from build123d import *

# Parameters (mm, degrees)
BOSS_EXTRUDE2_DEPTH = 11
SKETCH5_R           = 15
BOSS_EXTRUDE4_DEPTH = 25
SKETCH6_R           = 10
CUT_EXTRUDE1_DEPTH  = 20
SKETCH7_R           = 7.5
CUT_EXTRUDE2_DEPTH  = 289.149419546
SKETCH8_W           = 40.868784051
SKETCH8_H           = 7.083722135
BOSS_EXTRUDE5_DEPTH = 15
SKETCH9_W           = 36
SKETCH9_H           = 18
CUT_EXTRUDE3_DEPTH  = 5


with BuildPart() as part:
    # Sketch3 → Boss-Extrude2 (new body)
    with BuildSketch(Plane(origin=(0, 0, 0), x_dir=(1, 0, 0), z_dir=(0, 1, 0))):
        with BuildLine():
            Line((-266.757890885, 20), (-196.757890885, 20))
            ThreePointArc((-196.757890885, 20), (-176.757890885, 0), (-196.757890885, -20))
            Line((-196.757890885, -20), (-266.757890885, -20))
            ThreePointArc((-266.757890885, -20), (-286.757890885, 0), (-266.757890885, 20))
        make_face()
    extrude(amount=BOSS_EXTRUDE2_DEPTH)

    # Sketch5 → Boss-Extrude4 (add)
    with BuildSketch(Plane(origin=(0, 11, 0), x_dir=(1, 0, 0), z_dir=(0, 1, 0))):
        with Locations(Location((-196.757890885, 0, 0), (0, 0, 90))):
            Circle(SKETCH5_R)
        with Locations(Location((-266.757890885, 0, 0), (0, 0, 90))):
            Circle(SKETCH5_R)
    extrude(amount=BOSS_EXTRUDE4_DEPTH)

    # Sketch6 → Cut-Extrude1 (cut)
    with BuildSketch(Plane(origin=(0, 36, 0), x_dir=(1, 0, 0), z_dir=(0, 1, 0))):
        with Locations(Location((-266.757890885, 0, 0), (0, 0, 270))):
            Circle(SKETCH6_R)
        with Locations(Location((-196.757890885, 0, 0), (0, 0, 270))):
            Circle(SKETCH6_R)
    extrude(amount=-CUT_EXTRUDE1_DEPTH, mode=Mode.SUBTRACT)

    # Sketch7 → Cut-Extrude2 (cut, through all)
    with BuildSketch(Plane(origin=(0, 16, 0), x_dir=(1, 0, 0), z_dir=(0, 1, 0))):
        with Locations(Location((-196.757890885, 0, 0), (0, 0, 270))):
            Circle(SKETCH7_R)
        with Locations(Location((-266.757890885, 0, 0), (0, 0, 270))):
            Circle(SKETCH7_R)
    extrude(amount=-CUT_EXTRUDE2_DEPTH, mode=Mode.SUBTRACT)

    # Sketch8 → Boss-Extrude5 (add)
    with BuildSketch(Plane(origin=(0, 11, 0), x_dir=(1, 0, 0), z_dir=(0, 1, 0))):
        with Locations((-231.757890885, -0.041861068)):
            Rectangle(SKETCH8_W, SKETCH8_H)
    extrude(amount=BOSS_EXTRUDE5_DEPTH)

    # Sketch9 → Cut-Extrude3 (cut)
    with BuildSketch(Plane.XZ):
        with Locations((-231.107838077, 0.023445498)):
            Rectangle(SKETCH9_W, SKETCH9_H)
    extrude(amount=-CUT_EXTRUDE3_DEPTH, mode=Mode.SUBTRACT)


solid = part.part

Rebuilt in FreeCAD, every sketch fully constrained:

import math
import FreeCAD as App
import Part
import Sketcher
from FreeCAD import Vector
Q = App.Units.Quantity


def add_polygon(sketch, points):
    """Adds a closed chain of lines whose ends are joined by coincident constraints."""
    first, n = sketch.GeometryCount, len(points)
    for a, b in zip(points, points[1:] + points[:1]):
        sketch.addGeometry(Part.LineSegment(App.Vector(*a, 0), App.Vector(*b, 0)), False)
    for i in range(n):
        sketch.addConstraint(Sketcher.Constraint("Coincident", first + i, 2, first + (i + 1) % n, 1))

doc = App.newDocument("Part")
params = doc.addObject("Spreadsheet::Sheet", "Params")
for row, (alias, value) in enumerate([
    ("sketch1_radius", "20 mm"),
    ("sketch1_width", "70 mm"),
    ("pad1_length", "11 mm"),
    ("sketch2_diameter", "30 mm"),
    ("pad2_length", "25 mm"),
    ("sketch3_diameter", "20 mm"),
    ("pocket1_length", "20 mm"),
    ("sketch4_diameter", "15 mm"),
    ("pad3_length", "15 mm"),
    ("sketch6_width", "36 mm"),
    ("sketch6_height", "18 mm"),
    ("pocket3_length", "5 mm"),
], start=1):
    params.set(f"A{row}", alias)
    params.set(f"B{row}", "=" + value)
    params.setAlias(f"B{row}", alias)

body = doc.addObject("PartDesign::Body", "Body")

# Sketch on XZ plane
sketch1 = doc.addObject("Sketcher::SketchObject", "Sketch")
body.addObject(sketch1)
sketch1.AttachmentSupport = (doc.XZ_Plane, [""])
sketch1.MapMode = "FlatFace"
sketch1.addGeometry([
    Part.LineSegment(Vector(-197, -20, 0), Vector(-267, -20, 0)),
    Part.ArcOfCircle(Part.Circle(Vector(-267, 0, 0), Vector(0, 0, 1), 20), math.radians(90), math.radians(270)),
    Part.LineSegment(Vector(-267, 20, 0), Vector(-197, 20, 0)),
    Part.ArcOfCircle(Part.Circle(Vector(-197, 0, 0), Vector(0, 0, 1), 20), math.radians(-90), math.radians(90)),
], False)
sketch1.addConstraint([
    Sketcher.Constraint("Tangent", 0, 2, 1, 2),
    Sketcher.Constraint("Tangent", 1, 1, 2, 1),
    Sketcher.Constraint("Tangent", 2, 2, 3, 2),
    Sketcher.Constraint("Tangent", 3, 1, 0, 1),
    Sketcher.Constraint("Horizontal", 0),
    Sketcher.Constraint("Horizontal", 2),
    Sketcher.Constraint("PointOnObject", 1, 3, -1),
    Sketcher.Constraint("Radius", 1, Q("20 mm")),
    Sketcher.Constraint("DistanceX", 0, 2, 0, 1, Q("70 mm")),
    Sketcher.Constraint("DistanceX", 1, 3, -1, 1, Q("266.757891 mm")),
])
sketch1.setExpression("Constraints[7]", "Params.sketch1_radius")
sketch1.setExpression("Constraints[8]", "Params.sketch1_width")
pad1 = doc.addObject("PartDesign::Pad", "Pad")
body.addObject(pad1)
pad1.Profile = sketch1
pad1.setExpression("Length", "Params.pad1_length")
pad1.Reversed = True

# Sketch on XZ plane
sketch2 = doc.addObject("Sketcher::SketchObject", "Sketch001")
body.addObject(sketch2)
sketch2.AttachmentSupport = (doc.XZ_Plane, [""])
sketch2.MapMode = "FlatFace"
sketch2.AttachmentOffset = App.Placement(Vector(0, 0, -11), App.Rotation())
sketch2.addGeometry([
    Part.Circle(Vector(-197, 0, 0), Vector(0, 0, 1), 15),
    Part.Circle(Vector(-267, 0, 0), Vector(0, 0, 1), 15),
], False)
sketch2.addConstraint([
    Sketcher.Constraint("Equal", 0, 1),
    Sketcher.Constraint("PointOnObject", 0, 3, -1),
    Sketcher.Constraint("PointOnObject", 1, 3, -1),
    Sketcher.Constraint("Diameter", 0, Q("30 mm")),
    Sketcher.Constraint("DistanceX", 1, 3, 0, 3, Q("70 mm")),
    Sketcher.Constraint("DistanceX", 0, 3, -1, 1, Q("196.757891 mm")),
])
sketch2.setExpression("Constraints[3]", "Params.sketch2_diameter")
pad2 = doc.addObject("PartDesign::Pad", "Pad001")
body.addObject(pad2)
pad2.Profile = sketch2
pad2.setExpression("Length", "Params.pad2_length")
pad2.Reversed = True

# Sketch on XZ plane
sketch3 = doc.addObject("Sketcher::SketchObject", "Sketch002")
body.addObject(sketch3)
sketch3.AttachmentSupport = (doc.XZ_Plane, [""])
sketch3.MapMode = "FlatFace"
sketch3.AttachmentOffset = App.Placement(Vector(0, 0, -36), App.Rotation())
sketch3.addGeometry([
    Part.Circle(Vector(-267, 0, 0), Vector(0, 0, 1), 10),
    Part.Circle(Vector(-197, 0, 0), Vector(0, 0, 1), 10),
], False)
sketch3.addConstraint([
    Sketcher.Constraint("Equal", 0, 1),
    Sketcher.Constraint("PointOnObject", 0, 3, -1),
    Sketcher.Constraint("PointOnObject", 1, 3, -1),
    Sketcher.Constraint("Diameter", 0, Q("20 mm")),
    Sketcher.Constraint("DistanceX", 0, 3, 1, 3, Q("70 mm")),
    Sketcher.Constraint("DistanceX", 0, 3, -1, 1, Q("266.757891 mm")),
])
sketch3.setExpression("Constraints[3]", "Params.sketch3_diameter")
pocket1 = doc.addObject("PartDesign::Pocket", "Pocket")
body.addObject(pocket1)
pocket1.Profile = sketch3
pocket1.setExpression("Length", "Params.pocket1_length")
pocket1.Reversed = True

# Sketch on XZ plane
sketch4 = doc.addObject("Sketcher::SketchObject", "Sketch003")
body.addObject(sketch4)
sketch4.AttachmentSupport = (doc.XZ_Plane, [""])
sketch4.MapMode = "FlatFace"
sketch4.AttachmentOffset = App.Placement(Vector(0, 0, -16), App.Rotation())
sketch4.addGeometry([
    Part.Circle(Vector(-197, 0, 0), Vector(0, 0, 1), 8),
    Part.Circle(Vector(-267, 0, 0), Vector(0, 0, 1), 8),
], False)
sketch4.addConstraint([
    Sketcher.Constraint("Equal", 0, 1),
    Sketcher.Constraint("PointOnObject", 0, 3, -1),
    Sketcher.Constraint("PointOnObject", 1, 3, -1),
    Sketcher.Constraint("Diameter", 0, Q("15 mm")),
    Sketcher.Constraint("DistanceX", 1, 3, 0, 3, Q("70 mm")),
    Sketcher.Constraint("DistanceX", 0, 3, -1, 1, Q("196.757891 mm")),
])
sketch4.setExpression("Constraints[3]", "Params.sketch4_diameter")
pocket2 = doc.addObject("PartDesign::Pocket", "Pocket001")
body.addObject(pocket2)
pocket2.Profile = sketch4
pocket2.Type = "ThroughAll"
pocket2.Reversed = True

# Sketch on XZ plane
sketch5 = doc.addObject("Sketcher::SketchObject", "Sketch004")
body.addObject(sketch5)
sketch5.AttachmentSupport = (doc.XZ_Plane, [""])
sketch5.MapMode = "FlatFace"
sketch5.AttachmentOffset = App.Placement(Vector(0, 0, -11), App.Rotation())
add_polygon(sketch5, [(-252, -3), (-252, 4), (-211, 4), (-211, -3)])  # lines 0-3
sketch5.addConstraint([
    Sketcher.Constraint("Vertical", 0),
    Sketcher.Constraint("Horizontal", 1),
    Sketcher.Constraint("Vertical", 2),
    Sketcher.Constraint("Horizontal", 3),
    Sketcher.Constraint("DistanceY", 2, 2, -1, 1, Q("3.5 mm")),
    Sketcher.Constraint("DistanceX", 1, 2, -1, 1, Q("211.323499 mm")),
    Sketcher.Constraint("DistanceX", 1, 1, 1, 2, Q("40.868784 mm")),
    Sketcher.Constraint("DistanceY", 0, 1, 0, 2, Q("7.083722 mm")),
])
pad3 = doc.addObject("PartDesign::Pad", "Pad002")
body.addObject(pad3)
pad3.Profile = sketch5
pad3.setExpression("Length", "Params.pad3_length")
pad3.Reversed = True

# Sketch on XZ plane
sketch6 = doc.addObject("Sketcher::SketchObject", "Sketch005")
body.addObject(sketch6)
sketch6.AttachmentSupport = (doc.XZ_Plane, [""])
sketch6.MapMode = "FlatFace"
add_polygon(sketch6, [(-249, 9), (-249, -9), (-213, -9), (-213, 9)])  # lines 0-3
sketch6.addConstraint([
    Sketcher.Constraint("Vertical", 0),
    Sketcher.Constraint("Horizontal", 1),
    Sketcher.Constraint("Vertical", 2),
    Sketcher.Constraint("Horizontal", 3),
    Sketcher.Constraint("DistanceX", 1, 1, 1, 2, Q("36 mm")),
    Sketcher.Constraint("DistanceY", 0, 2, 0, 1, Q("18 mm")),
    Sketcher.Constraint("DistanceX", 0, 2, -1, 1, Q("249.107838 mm")),
    Sketcher.Constraint("DistanceY", 0, 2, -1, 1, Q("8.976555 mm")),
])
sketch6.setExpression("Constraints[8]", "Params.sketch6_width")
sketch6.setExpression("Constraints[9]", "Params.sketch6_height")
pocket3 = doc.addObject("PartDesign::Pocket", "Pocket002")
body.addObject(pocket3)
pocket3.Profile = sketch6
pocket3.setExpression("Length", "Params.pocket3_length")

doc.recompute()
